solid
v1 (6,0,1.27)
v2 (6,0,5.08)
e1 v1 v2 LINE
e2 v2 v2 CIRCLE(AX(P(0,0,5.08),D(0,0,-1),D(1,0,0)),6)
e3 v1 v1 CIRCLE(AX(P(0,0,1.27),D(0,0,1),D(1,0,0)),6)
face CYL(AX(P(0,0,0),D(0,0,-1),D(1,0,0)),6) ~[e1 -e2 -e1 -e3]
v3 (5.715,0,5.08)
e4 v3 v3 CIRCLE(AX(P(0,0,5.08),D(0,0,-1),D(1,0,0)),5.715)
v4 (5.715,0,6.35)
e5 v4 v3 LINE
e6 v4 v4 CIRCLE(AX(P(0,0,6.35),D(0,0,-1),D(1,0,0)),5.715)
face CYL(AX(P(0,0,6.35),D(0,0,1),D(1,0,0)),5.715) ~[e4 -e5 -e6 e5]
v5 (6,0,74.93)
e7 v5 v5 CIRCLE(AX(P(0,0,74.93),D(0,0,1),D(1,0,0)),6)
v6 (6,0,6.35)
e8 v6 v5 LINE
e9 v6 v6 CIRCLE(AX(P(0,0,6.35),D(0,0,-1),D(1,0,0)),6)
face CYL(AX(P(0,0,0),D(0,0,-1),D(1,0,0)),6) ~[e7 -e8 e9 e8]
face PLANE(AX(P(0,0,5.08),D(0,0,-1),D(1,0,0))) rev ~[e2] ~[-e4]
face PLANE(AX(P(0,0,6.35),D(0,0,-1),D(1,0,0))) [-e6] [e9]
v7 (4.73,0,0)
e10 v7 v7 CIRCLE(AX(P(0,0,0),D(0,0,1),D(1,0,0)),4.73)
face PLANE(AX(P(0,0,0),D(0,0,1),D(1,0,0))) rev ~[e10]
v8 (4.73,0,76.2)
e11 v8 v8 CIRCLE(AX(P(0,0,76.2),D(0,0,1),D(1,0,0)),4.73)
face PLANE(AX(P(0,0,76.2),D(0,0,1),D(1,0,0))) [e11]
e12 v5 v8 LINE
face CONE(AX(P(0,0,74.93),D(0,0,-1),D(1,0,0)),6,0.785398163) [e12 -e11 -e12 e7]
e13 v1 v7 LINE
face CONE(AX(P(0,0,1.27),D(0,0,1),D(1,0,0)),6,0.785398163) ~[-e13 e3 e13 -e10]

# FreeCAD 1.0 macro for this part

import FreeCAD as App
import Part
import Sketcher
from FreeCAD import Vector
Q = App.Units.Quantity


def edges_at(feature, points):
    """Names of the edges that pass closest to the given points."""
    edges = feature.Shape.Edges
    near = lambda p: min(range(len(edges)), key=lambda i: edges[i].distToShape(Part.Vertex(*p))[0])
    return sorted({f"Edge{near(p) + 1}" for p in points})

doc = App.newDocument("Part")
body = doc.addObject("PartDesign::Body", "Body")

sketch1 = body.newObject("Sketcher::SketchObject", "Sketch")
sketch1.AttachmentSupport = (doc.getObject("XY_Plane"), [""])
sketch1.MapMode = "FlatFace"
sketch1.addGeometry(Part.Circle(Vector(0, 0, 0), Vector(0, 0, 1), 6), False)
sketch1.addConstraint(Sketcher.Constraint("Coincident", 0, 3, -1, 1))
sketch1.addConstraint(Sketcher.Constraint("Diameter", 0, 12.0))
pad1 = body.newObject("PartDesign::Pad", "Pad")
pad1.Profile = sketch1
pad1.Length = Q("3 in")

sketch2 = body.newObject("Sketcher::SketchObject", "Sketch001")
sketch2.AttachmentSupport = (doc.getObject("XY_Plane"), [""])
sketch2.MapMode = "FlatFace"
sketch2.AttachmentOffset = App.Placement(Vector(0, 0, 0.25 * 25.4), App.Rotation())
sketch2.addGeometry(Part.Circle(Vector(0, 0, 0), Vector(0, 0, 1), 6), False)
sketch2.addGeometry(Part.Circle(Vector(0, 0, 0), Vector(0, 0, 1), 5.715), False)
sketch2.addConstraint(Sketcher.Constraint("Coincident", 0, 3, -1, 1))
sketch2.addConstraint(Sketcher.Constraint("Coincident", 1, 3, -1, 1))
sketch2.addConstraint(Sketcher.Constraint("Diameter", 1, Q("0.45 in")))
sketch2.addConstraint(Sketcher.Constraint("Diameter", 0, 12.0))
pocket1 = body.newObject("PartDesign::Pocket", "Pocket")
pocket1.Profile = sketch2
pocket1.Length = Q("0.05 in")
doc.recompute()

chamfer = body.newObject("PartDesign::Chamfer", "Chamfer")
chamfer.Base = (pocket1, edges_at(pocket1, [(-6, 0, 0), (-6, 0, 76.2)]))
chamfer.Size = Q("0.05 in")

doc.recompute()
